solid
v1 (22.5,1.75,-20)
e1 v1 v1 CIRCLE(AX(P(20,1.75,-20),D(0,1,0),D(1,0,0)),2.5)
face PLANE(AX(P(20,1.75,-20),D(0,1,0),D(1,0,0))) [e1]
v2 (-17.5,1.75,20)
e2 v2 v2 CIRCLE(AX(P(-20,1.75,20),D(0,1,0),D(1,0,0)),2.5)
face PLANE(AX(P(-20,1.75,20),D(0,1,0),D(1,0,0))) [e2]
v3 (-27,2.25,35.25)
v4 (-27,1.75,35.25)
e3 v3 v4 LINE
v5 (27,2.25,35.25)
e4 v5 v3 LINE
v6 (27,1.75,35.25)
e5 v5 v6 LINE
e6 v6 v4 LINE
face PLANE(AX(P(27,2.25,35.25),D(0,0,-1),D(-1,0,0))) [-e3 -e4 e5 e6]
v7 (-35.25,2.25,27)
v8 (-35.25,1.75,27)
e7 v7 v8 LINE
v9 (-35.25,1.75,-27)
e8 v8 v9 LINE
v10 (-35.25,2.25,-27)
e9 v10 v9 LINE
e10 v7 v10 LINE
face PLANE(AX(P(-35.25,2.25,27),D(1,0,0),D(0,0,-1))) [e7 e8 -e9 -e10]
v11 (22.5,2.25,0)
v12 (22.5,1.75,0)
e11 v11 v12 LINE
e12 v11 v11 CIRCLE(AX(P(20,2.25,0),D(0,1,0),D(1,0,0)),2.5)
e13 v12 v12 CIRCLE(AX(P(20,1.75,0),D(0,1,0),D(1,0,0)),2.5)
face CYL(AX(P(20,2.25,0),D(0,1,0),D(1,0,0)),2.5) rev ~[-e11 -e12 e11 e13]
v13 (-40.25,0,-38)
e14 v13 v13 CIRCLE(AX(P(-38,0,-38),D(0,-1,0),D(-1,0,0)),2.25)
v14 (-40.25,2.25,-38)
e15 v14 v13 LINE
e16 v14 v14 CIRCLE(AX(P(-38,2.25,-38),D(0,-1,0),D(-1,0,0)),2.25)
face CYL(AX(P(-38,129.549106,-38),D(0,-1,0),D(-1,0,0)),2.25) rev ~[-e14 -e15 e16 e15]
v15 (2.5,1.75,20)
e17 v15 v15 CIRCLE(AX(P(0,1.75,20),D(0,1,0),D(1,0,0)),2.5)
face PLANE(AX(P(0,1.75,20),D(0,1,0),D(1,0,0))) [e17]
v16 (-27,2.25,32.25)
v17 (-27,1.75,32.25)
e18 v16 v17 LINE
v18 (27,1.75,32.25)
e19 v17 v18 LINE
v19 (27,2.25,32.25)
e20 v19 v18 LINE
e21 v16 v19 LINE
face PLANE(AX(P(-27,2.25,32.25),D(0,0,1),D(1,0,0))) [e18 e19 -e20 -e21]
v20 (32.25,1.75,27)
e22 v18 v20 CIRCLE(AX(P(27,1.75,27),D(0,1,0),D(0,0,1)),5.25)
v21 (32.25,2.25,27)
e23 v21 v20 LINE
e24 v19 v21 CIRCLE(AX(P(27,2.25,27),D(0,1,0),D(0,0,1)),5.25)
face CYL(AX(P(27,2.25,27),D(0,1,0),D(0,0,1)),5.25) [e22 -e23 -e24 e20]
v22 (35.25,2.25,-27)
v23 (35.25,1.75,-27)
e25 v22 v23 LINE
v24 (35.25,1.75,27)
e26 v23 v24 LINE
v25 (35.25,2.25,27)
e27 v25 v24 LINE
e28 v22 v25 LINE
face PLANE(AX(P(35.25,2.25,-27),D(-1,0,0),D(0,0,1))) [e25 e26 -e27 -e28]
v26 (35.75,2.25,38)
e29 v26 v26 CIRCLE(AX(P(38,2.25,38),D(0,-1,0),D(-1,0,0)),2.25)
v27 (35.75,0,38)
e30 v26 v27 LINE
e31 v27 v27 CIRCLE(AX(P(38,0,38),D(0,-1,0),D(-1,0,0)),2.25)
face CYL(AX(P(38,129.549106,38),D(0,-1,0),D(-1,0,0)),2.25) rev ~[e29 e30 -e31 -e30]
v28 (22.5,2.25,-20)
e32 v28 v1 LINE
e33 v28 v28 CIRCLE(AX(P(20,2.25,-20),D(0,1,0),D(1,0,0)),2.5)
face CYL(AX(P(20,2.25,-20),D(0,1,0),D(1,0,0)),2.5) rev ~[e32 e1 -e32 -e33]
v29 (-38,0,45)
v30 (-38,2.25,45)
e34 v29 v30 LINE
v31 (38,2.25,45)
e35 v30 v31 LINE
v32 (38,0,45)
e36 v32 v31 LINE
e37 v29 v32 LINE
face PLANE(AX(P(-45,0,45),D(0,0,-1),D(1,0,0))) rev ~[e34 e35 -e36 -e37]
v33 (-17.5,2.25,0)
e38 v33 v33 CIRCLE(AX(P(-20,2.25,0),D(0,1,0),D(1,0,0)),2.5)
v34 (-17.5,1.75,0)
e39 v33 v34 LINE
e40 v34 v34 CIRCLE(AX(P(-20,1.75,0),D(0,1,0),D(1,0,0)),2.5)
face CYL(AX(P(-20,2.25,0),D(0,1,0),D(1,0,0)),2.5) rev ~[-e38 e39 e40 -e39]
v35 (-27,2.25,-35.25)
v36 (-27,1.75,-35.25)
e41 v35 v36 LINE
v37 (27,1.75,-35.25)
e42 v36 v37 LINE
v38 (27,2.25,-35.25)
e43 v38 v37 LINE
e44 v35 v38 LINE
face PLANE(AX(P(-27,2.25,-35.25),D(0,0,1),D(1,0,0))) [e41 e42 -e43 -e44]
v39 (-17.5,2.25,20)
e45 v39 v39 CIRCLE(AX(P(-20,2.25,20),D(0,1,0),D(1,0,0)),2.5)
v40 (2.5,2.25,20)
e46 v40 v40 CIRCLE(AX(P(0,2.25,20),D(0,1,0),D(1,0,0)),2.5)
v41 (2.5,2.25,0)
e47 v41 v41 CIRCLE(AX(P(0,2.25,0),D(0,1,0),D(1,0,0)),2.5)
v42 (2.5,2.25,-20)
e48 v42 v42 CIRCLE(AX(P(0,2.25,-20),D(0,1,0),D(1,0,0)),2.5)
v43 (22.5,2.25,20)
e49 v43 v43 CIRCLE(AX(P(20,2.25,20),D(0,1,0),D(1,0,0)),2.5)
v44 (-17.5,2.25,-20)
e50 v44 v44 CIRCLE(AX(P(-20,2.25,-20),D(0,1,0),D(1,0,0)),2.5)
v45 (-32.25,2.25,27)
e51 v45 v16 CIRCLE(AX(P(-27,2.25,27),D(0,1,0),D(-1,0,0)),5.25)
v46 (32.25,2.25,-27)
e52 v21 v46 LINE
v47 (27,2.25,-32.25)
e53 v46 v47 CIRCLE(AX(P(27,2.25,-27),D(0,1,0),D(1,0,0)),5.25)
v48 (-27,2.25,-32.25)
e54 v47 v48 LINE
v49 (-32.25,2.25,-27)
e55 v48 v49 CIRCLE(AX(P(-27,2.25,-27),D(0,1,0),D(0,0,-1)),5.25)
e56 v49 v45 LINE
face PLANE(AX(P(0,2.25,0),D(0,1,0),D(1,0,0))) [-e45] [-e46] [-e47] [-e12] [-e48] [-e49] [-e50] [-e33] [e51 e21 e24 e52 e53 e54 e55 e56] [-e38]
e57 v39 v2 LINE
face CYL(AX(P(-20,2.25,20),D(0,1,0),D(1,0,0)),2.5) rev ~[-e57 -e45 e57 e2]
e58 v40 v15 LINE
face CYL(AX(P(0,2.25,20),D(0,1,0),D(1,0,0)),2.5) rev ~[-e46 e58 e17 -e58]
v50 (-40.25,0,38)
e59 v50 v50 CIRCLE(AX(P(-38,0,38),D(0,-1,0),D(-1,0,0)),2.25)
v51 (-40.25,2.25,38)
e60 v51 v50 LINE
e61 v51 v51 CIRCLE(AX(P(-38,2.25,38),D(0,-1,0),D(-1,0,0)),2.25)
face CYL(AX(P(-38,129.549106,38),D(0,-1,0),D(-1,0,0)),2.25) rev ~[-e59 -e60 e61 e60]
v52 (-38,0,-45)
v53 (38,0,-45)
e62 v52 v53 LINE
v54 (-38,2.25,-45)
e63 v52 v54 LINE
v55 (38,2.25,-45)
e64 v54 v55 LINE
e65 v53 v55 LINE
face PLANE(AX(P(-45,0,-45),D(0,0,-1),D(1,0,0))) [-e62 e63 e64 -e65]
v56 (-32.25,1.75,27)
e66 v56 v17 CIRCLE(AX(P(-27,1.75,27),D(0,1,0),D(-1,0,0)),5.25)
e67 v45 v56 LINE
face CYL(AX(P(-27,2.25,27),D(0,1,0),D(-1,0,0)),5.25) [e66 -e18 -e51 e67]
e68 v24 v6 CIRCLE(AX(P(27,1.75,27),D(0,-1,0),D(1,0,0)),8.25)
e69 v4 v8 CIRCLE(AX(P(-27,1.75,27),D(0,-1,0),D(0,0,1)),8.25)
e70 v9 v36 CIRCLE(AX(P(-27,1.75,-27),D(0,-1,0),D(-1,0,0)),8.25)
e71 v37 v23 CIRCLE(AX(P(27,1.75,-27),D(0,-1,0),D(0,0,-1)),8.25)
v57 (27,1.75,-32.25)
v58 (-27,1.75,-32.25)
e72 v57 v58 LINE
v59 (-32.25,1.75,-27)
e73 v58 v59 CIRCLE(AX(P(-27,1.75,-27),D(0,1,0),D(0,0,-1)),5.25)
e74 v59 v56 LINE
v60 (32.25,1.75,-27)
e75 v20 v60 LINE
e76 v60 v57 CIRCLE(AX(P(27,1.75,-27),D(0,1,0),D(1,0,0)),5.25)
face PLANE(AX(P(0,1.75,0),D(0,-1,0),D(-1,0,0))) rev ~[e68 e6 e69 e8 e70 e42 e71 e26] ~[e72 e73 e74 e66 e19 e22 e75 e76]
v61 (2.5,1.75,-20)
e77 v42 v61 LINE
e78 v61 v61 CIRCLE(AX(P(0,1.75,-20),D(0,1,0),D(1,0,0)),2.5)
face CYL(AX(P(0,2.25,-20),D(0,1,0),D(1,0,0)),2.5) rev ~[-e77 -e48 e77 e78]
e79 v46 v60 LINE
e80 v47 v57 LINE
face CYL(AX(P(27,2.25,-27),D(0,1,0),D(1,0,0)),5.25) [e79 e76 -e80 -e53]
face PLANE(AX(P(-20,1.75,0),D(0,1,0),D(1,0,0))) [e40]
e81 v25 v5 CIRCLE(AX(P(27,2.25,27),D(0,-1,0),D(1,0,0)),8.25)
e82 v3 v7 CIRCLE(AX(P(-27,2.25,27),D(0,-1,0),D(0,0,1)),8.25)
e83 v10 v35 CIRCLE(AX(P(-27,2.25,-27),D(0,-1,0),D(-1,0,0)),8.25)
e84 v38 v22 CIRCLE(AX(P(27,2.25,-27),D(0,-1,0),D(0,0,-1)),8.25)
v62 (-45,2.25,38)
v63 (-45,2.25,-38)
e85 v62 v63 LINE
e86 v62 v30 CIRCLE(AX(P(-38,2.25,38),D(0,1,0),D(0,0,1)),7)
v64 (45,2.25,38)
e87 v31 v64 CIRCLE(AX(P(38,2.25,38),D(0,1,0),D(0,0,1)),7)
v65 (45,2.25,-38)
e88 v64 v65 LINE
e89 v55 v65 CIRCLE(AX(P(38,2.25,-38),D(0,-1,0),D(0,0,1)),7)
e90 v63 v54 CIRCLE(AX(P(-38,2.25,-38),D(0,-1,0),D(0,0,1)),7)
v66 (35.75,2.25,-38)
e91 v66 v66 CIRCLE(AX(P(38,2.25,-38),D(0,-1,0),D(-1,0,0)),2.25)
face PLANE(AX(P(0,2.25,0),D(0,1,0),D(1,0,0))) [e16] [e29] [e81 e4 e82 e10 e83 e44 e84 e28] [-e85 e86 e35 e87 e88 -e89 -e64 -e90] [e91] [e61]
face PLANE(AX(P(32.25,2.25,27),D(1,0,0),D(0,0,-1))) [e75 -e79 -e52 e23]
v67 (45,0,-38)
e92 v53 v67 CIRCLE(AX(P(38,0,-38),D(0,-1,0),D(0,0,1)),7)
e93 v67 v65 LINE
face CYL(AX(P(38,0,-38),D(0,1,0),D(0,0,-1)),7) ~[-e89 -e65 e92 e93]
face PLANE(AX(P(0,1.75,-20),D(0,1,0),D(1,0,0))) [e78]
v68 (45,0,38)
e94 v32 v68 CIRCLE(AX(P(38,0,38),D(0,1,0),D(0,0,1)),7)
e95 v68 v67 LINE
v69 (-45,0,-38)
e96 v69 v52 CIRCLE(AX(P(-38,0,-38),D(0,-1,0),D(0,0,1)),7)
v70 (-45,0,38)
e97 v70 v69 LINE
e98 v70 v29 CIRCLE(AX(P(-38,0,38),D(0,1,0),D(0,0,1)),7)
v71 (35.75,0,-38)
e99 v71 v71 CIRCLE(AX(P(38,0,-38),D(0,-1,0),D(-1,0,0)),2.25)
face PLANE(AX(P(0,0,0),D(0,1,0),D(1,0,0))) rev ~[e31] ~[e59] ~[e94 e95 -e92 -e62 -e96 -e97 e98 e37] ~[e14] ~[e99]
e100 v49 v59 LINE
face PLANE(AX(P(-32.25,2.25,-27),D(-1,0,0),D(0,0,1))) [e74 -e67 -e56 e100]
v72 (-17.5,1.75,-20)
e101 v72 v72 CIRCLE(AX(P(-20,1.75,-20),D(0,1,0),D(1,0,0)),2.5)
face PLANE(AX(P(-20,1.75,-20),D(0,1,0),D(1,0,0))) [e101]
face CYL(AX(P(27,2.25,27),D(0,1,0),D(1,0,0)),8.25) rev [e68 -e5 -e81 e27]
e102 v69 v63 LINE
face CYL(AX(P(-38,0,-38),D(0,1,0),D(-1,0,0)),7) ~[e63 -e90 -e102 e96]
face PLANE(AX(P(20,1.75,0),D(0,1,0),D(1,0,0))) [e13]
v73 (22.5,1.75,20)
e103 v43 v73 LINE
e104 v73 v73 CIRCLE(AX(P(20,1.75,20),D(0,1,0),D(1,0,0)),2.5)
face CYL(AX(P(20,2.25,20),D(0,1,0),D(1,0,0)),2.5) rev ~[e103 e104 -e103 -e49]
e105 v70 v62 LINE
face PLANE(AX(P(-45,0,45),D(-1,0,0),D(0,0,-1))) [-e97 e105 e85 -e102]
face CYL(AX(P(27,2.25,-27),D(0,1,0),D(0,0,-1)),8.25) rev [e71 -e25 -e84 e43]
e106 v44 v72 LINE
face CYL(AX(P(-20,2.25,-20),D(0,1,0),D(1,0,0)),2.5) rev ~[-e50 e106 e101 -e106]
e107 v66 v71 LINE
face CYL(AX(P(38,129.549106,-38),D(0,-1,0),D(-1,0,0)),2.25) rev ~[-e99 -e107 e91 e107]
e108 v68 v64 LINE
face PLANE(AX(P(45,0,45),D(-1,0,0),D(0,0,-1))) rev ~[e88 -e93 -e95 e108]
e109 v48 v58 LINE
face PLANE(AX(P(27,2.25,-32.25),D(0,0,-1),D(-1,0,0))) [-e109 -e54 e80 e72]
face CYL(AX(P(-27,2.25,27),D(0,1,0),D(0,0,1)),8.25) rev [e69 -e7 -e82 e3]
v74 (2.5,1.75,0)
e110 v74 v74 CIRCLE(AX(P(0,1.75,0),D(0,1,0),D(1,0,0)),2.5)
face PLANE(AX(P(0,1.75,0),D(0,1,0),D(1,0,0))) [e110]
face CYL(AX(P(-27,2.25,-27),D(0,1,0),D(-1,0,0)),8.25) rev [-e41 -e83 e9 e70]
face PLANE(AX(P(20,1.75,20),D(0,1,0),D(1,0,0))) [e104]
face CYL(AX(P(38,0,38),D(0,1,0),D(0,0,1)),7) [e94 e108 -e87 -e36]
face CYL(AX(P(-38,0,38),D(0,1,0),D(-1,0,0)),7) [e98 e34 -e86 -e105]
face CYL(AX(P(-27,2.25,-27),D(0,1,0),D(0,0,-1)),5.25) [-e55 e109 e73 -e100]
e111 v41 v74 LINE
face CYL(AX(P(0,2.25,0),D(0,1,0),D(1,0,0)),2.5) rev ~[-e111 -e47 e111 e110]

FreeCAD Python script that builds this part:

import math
import FreeCAD as App
import Part
import Sketcher
from FreeCAD import Vector
Q = App.Units.Quantity


def edges_at(feature, points):
    """Names of the edges that pass closest to the given points."""
    edges = feature.Shape.Edges
    near = lambda p: min(range(len(edges)), key=lambda i: edges[i].distToShape(Part.Vertex(*p))[0])
    return sorted({f"Edge{near(p) + 1}" for p in points})

doc = App.newDocument("Part")
body = doc.addObject("PartDesign::Body", "Body")

# Sketch on XZ plane
sketch1 = doc.addObject("Sketcher::SketchObject", "Sketch")
body.addObject(sketch1)
sketch1.AttachmentSupport = (doc.XZ_Plane, [""])
sketch1.MapMode = "FlatFace"
sketch1.addGeometry([
    Part.LineSegment(Vector(-45, -45, 0), Vector(-45, 45, 0)),
    Part.LineSegment(Vector(-45, 45, 0), Vector(45, 45, 0)),
    Part.LineSegment(Vector(45, 45, 0), Vector(45, -45, 0)),
    Part.LineSegment(Vector(45, -45, 0), Vector(-45, -45, 0)),
], False)
sketch1.addConstraint([
    Sketcher.Constraint("Coincident", 0, 2, 1, 1),
    Sketcher.Constraint("Coincident", 1, 2, 2, 1),
    Sketcher.Constraint("Coincident", 2, 2, 3, 1),
    Sketcher.Constraint("Coincident", 3, 2, 0, 1),
    Sketcher.Constraint("Vertical", 0),
    Sketcher.Constraint("Horizontal", 1),
    Sketcher.Constraint("Vertical", 2),
    Sketcher.Constraint("Horizontal", 3),
    Sketcher.Constraint("Symmetric", 0, 2, 2, 2, -1, 1),
    Sketcher.Constraint("Equal", 3, 0),
    Sketcher.Constraint("DistanceX", 1, 1, 1, 2, Q("90 mm")),
])
pad1 = doc.addObject("PartDesign::Pad", "Pad")
body.addObject(pad1)
pad1.Profile = sketch1
pad1.Length = 2.25
pad1.Reversed = True

# Sketch on XZ plane
sketch2 = doc.addObject("Sketcher::SketchObject", "Sketch001")
body.addObject(sketch2)
sketch2.AttachmentSupport = (doc.XZ_Plane, [""])
sketch2.MapMode = "FlatFace"
sketch2.AttachmentOffset = App.Placement(Vector(0, 0, -2.25), App.Rotation())
sketch2.addGeometry([
    Part.ArcOfCircle(Part.Circle(Vector(-27, -27, 0), Vector(0, 0, 1), 8.2), math.radians(180), math.radians(270)),  # 0
    Part.LineSegment(Vector(-35.2, -27, 0), Vector(-35.2, 27, 0)),  # 1
    Part.ArcOfCircle(Part.Circle(Vector(-27, 27, 0), Vector(0, 0, 1), 8.2), math.radians(90), math.radians(180)),  # 2
    Part.LineSegment(Vector(-27, 35.2, 0), Vector(27, 35.2, 0)),  # 3
    Part.ArcOfCircle(Part.Circle(Vector(27, 27, 0), Vector(0, 0, 1), 8.2), math.radians(0), math.radians(90)),  # 4
    Part.LineSegment(Vector(35.2, 27, 0), Vector(35.2, -27, 0)),  # 5
    Part.ArcOfCircle(Part.Circle(Vector(27, -27, 0), Vector(0, 0, 1), 8.2), math.radians(-90), math.radians(0)),  # 6
    Part.LineSegment(Vector(27, -35.2, 0), Vector(-27, -35.2, 0)),  # 7
    Part.ArcOfCircle(Part.Circle(Vector(-27, 27, 0), Vector(0, 0, 1), 5.3), math.radians(90), math.radians(180)),  # 8
    Part.LineSegment(Vector(-32.2, 27, 0), Vector(-32.2, -27, 0)),  # 9
    Part.ArcOfCircle(Part.Circle(Vector(-27, -27, 0), Vector(0, 0, 1), 5.3), math.radians(-180), math.radians(-90)),  # 10
    Part.LineSegment(Vector(-27, -32.2, 0), Vector(27, -32.2, 0)),  # 11
    Part.ArcOfCircle(Part.Circle(Vector(27, -27, 0), Vector(0, 0, 1), 5.3), math.radians(-90), math.radians(0)),  # 12
    Part.LineSegment(Vector(32.2, -27, 0), Vector(32.2, 27, 0)),  # 13
    Part.ArcOfCircle(Part.Circle(Vector(27, 27, 0), Vector(0, 0, 1), 5.3), math.radians(0), math.radians(90)),  # 14
    Part.LineSegment(Vector(27, 32.2, 0), Vector(-27, 32.2, 0)),  # 15
    Part.Circle(Vector(-20, -20, 0), Vector(0, 0, 1), 2.5),  # 16
    Part.Circle(Vector(0, -20, 0), Vector(0, 0, 1), 2.5),  # 17
    Part.Circle(Vector(20, -20, 0), Vector(0, 0, 1), 2.5),  # 18
    Part.Circle(Vector(20, 0, 0), Vector(0, 0, 1), 2.5),  # 19
    Part.Circle(Vector(20, 20, 0), Vector(0, 0, 1), 2.5),  # 20
    Part.Circle(Vector(0, 20, 0), Vector(0, 0, 1), 2.5),  # 21
    Part.Circle(Vector(0, 0, 0), Vector(0, 0, 1), 2.5),  # 22
    Part.Circle(Vector(-20, 0, 0), Vector(0, 0, 1), 2.5),  # 23
    Part.Circle(Vector(-20, 20, 0), Vector(0, 0, 1), 2.5),  # 24
], False)
sketch2.addConstraint([
    Sketcher.Constraint("Tangent", 0, 1, 1, 1),
    Sketcher.Constraint("Tangent", 1, 2, 2, 2),
    Sketcher.Constraint("Tangent", 2, 1, 3, 1),
    Sketcher.Constraint("Tangent", 3, 2, 4, 2),
    Sketcher.Constraint("Tangent", 4, 1, 5, 1),
    Sketcher.Constraint("Tangent", 5, 2, 6, 2),
    Sketcher.Constraint("Tangent", 6, 1, 7, 1),
    Sketcher.Constraint("Tangent", 7, 2, 0, 2),
    Sketcher.Constraint("Tangent", 8, 2, 9, 1),
    Sketcher.Constraint("Tangent", 9, 2, 10, 1),
    Sketcher.Constraint("Tangent", 10, 2, 11, 1),
    Sketcher.Constraint("Tangent", 11, 2, 12, 1),
    Sketcher.Constraint("Tangent", 12, 2, 13, 1),
    Sketcher.Constraint("Tangent", 13, 2, 14, 1),
    Sketcher.Constraint("Tangent", 14, 2, 15, 1),
    Sketcher.Constraint("Tangent", 15, 2, 8, 1),
    Sketcher.Constraint("Vertical", 1),
    Sketcher.Constraint("Horizontal", 3),
    Sketcher.Constraint("Vertical", 5),
    Sketcher.Constraint("Horizontal", 7),
    Sketcher.Constraint("Vertical", 9),
    Sketcher.Constraint("Horizontal", 11),
    Sketcher.Constraint("Vertical", 13),
    Sketcher.Constraint("Horizontal", 15),
    Sketcher.Constraint("Coincident", 22, 3, -1, 1),
    Sketcher.Constraint("Coincident", 8, 3, 2, 3),
    Sketcher.Constraint("Coincident", 10, 3, 0, 3),
    Sketcher.Constraint("Coincident", 12, 3, 6, 3),
    Sketcher.Constraint("Equal", 0, 2),
    Sketcher.Constraint("Equal", 2, 4),
    Sketcher.Constraint("Equal", 4, 6),
    Sketcher.Constraint("Equal", 12, 14),
    Sketcher.Constraint("Equal", 16, 17),
    Sketcher.Constraint("Equal", 17, 18),
    Sketcher.Constraint("Equal", 18, 19),
    Sketcher.Constraint("Equal", 19, 20),
    Sketcher.Constraint("Equal", 20, 21),
    Sketcher.Constraint("Equal", 21, 22),
    Sketcher.Constraint("Equal", 22, 23),
    Sketcher.Constraint("Equal", 23, 24),
    Sketcher.Constraint("Symmetric", 0, 3, 4, 3, -1, 1),
    Sketcher.Constraint("Symmetric", 16, 3, 20, 3, -1, 1),
    Sketcher.Constraint("Symmetric", 17, 3, 21, 3, -1, 1),
    Sketcher.Constraint("Symmetric", 19, 3, 23, 3, -1, 1),
    Sketcher.Constraint("Symmetric", 18, 3, 24, 3, -1, 1),
    Sketcher.Constraint("Symmetric", 16, 3, 18, 3, -2),
    Sketcher.Constraint("PointOnObject", 17, 3, -2),
    Sketcher.Constraint("PointOnObject", 19, 3, -1),
    Sketcher.Constraint("Horizontal", 16, 3, 17, 3),
    Sketcher.Constraint("Vertical", 18, 3, 19, 3),
    Sketcher.Constraint("Equal", 15, 1),
    Sketcher.Constraint("Diameter", 16, Q("5 mm")),
    Sketcher.Constraint("DistanceX", 3, 1, 3, 2, Q("54 mm")),
    Sketcher.Constraint("Radius", 0, Q("8.25 mm")),
    Sketcher.Constraint("Radius", 8, Q("5.25 mm")),
    Sketcher.Constraint("DistanceX", 16, 3, -1, 1, Q("20 mm")),
    Sketcher.Constraint("DistanceY", 16, 3, -1, 1, Q("20 mm")),
])
pocket1 = doc.addObject("PartDesign::Pocket", "Pocket")
body.addObject(pocket1)
pocket1.Profile = sketch2
pocket1.Length = 0.5
pocket1.Reversed = True
doc.recompute()

fillet = doc.addObject("PartDesign::Fillet", "Fillet")
body.addObject(fillet)
fillet.Base = (pocket1, edges_at(pocket1, [
    (45, 1.125, 45),
    (-45, 1.125, 45),
    (-45, 1.125, -45),
    (45, 1.125, -45),
]))
fillet.Radius = 7

# Sketch on XZ plane
sketch3 = doc.addObject("Sketcher::SketchObject", "Sketch002")
body.addObject(sketch3)
sketch3.AttachmentSupport = (doc.XZ_Plane, [""])
sketch3.MapMode = "FlatFace"
sketch3.AttachmentOffset = App.Placement(Vector(0, 0, -2.25), App.Rotation())
sketch3.addGeometry([
    Part.Circle(Vector(-38, -38, 0), Vector(0, 0, 1), 2.2),
    Part.Circle(Vector(38, -38, 0), Vector(0, 0, 1), 2.2),
    Part.Circle(Vector(38, 38, 0), Vector(0, 0, 1), 2.2),
    Part.Circle(Vector(-38, 38, 0), Vector(0, 0, 1), 2.2),
], False)
sketch3.addConstraint([
    Sketcher.Constraint("Equal", 0, 1),
    Sketcher.Constraint("Equal", 1, 2),
    Sketcher.Constraint("Equal", 2, 3),
    Sketcher.Constraint("Symmetric", 0, 3, 2, 3, -1, 1),
    Sketcher.Constraint("Symmetric", 1, 3, 3, 3, -1, 1),
    Sketcher.Constraint("Symmetric", 0, 3, 1, 3, -2),
    Sketcher.Constraint("Diameter", 0, Q("4.5 mm")),
    Sketcher.Constraint("DistanceX", 0, 3, -1, 1, Q("38 mm")),
    Sketcher.Constraint("DistanceY", 0, 3, -1, 1, Q("38 mm")),
])
doc.recompute()
hole = doc.addObject("PartDesign::Hole", "Hole")
body.addObject(hole)
hole.Profile = sketch3
hole.ThreadType = "None"
hole.Diameter = 4.5
hole.DepthType = "ThroughAll"
hole.Reversed = True

doc.recompute()
